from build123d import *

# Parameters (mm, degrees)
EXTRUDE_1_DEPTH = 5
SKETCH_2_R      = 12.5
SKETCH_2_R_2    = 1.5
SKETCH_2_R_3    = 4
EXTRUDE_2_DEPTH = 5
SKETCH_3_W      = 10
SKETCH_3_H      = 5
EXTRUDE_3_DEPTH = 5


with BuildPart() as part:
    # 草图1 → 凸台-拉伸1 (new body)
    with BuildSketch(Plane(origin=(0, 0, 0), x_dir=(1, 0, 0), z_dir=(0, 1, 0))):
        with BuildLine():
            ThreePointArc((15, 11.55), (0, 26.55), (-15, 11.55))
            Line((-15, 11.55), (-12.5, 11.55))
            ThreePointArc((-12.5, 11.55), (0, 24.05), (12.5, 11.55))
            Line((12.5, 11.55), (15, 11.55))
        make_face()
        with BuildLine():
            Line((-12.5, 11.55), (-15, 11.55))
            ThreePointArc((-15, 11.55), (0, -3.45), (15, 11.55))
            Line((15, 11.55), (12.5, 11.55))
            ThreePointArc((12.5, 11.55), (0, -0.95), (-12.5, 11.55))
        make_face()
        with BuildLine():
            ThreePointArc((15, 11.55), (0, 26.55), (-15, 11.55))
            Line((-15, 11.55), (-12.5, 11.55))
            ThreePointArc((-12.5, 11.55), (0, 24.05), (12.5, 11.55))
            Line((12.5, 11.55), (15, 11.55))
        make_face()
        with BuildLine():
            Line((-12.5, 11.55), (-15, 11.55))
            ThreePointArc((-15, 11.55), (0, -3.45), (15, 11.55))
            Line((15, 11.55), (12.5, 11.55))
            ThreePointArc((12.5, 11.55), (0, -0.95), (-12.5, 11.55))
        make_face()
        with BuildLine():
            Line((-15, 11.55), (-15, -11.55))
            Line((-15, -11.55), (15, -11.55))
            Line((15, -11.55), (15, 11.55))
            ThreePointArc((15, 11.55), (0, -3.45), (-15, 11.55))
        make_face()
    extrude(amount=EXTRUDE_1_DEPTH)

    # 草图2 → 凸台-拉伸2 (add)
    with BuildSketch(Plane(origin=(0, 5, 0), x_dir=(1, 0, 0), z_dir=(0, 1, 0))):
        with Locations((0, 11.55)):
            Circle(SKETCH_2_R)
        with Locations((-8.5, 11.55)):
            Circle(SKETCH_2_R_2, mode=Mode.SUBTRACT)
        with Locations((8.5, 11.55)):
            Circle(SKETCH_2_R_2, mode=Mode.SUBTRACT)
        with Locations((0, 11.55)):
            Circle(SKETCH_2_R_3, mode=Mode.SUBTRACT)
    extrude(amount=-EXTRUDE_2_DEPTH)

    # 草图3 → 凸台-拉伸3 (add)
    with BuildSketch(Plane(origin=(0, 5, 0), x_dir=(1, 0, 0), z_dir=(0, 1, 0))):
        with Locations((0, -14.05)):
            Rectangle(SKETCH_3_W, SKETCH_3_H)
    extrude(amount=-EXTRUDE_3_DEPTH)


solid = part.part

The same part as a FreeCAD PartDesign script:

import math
import FreeCAD as App
import Part
import Sketcher

V = App.Vector


def add_polygon(sketch, points):
    """Adds a closed chain of lines whose ends are joined by coincident constraints."""
    first, n = sketch.GeometryCount, len(points)
    for a, b in zip(points, points[1:] + points[:1]):
        sketch.addGeometry(Part.LineSegment(App.Vector(*a, 0), App.Vector(*b, 0)), False)
    for i in range(n):
        sketch.addConstraint(Sketcher.Constraint("Coincident", first + i, 2, first + (i + 1) % n, 1))

doc = App.newDocument("Part")
body = doc.addObject("PartDesign::Body", "Body")

# Sketch on XZ plane
sketch1 = body.newObject("Sketcher::SketchObject", "Sketch")
sketch1.AttachmentSupport = (doc.getObject("XZ_Plane"), [""])
sketch1.MapMode = "FlatFace"
sketch1.addGeometry(Part.ArcOfCircle(Part.Circle(V(0, -11.55, 0), V(0, 0, 1), 15), math.radians(180), math.radians(360)), False)
sketch1.addGeometry(Part.LineSegment(V(-15, -11.55, 0), V(-15, 11.55, 0)), False)
sketch1.addGeometry(Part.LineSegment(V(-15, 11.55, 0), V(15, 11.55, 0)), False)
sketch1.addGeometry(Part.LineSegment(V(15, 11.55, 0), V(15, -11.55, 0)), False)
sketch1.addGeometry(Part.Circle(V(0, -11.55, 0), V(0, 0, 1), 12.5), False)
sketch1.addConstraint(Sketcher.Constraint("Tangent", 0, 1, 1, 1))
sketch1.addConstraint(Sketcher.Constraint("Coincident", 1, 2, 2, 1))
sketch1.addConstraint(Sketcher.Constraint("Coincident", 2, 2, 3, 1))
sketch1.addConstraint(Sketcher.Constraint("Tangent", 3, 2, 0, 2))
sketch1.addConstraint(Sketcher.Constraint("Vertical", 1))
sketch1.addConstraint(Sketcher.Constraint("Horizontal", 2))
sketch1.addConstraint(Sketcher.Constraint("Vertical", 3))
sketch1.addConstraint(Sketcher.Constraint("Coincident", 4, 3, 0, 3))
sketch1.addConstraint(Sketcher.Constraint("Symmetric", 0, 1, 2, 2, -1, 1))
sketch1.addConstraint(Sketcher.Constraint("Diameter", 4, 25.0))
sketch1.addConstraint(Sketcher.Constraint("Radius", 0, 15.0))
sketch1.addConstraint(Sketcher.Constraint("DistanceY", 1, 1, 1, 2, 23.1))
pad1 = body.newObject("PartDesign::Pad", "Pad")
pad1.Profile = sketch1
pad1.Length = 5
pad1.Reversed = True

# Sketch on XZ plane
sketch2 = body.newObject("Sketcher::SketchObject", "Sketch001")
sketch2.AttachmentSupport = (doc.getObject("XZ_Plane"), [""])
sketch2.MapMode = "FlatFace"
sketch2.AttachmentOffset = App.Placement(V(0, 0, -5), App.Rotation())
sketch2.addGeometry(Part.Circle(V(0, -11.55, 0), V(0, 0, 1), 12.5), False)
sketch2.addGeometry(Part.Circle(V(-8.5, -11.55, 0), V(0, 0, 1), 1.5), False)
sketch2.addGeometry(Part.Circle(V(0, -11.55, 0), V(0, 0, 1), 4), False)
sketch2.addGeometry(Part.Circle(V(8.5, -11.55, 0), V(0, 0, 1), 1.5), False)
sketch2.addConstraint(Sketcher.Constraint("Coincident", 2, 3, 0, 3))
sketch2.addConstraint(Sketcher.Constraint("Equal", 1, 3))
sketch2.addConstraint(Sketcher.Constraint("Symmetric", 1, 3, 3, 3, -2))
sketch2.addConstraint(Sketcher.Constraint("PointOnObject", 0, 3, -2))
sketch2.addConstraint(Sketcher.Constraint("Horizontal", 0, 3, 1, 3))
sketch2.addConstraint(Sketcher.Constraint("Diameter", 0, 25.0))
sketch2.addConstraint(Sketcher.Constraint("Diameter", 1, 3.0))
sketch2.addConstraint(Sketcher.Constraint("Diameter", 2, 8.0))
sketch2.addConstraint(Sketcher.Constraint("DistanceX", 1, 3, 3, 3, 17.0))
sketch2.addConstraint(Sketcher.Constraint("DistanceY", 0, 3, -1, 1, 11.55))
pad2 = body.newObject("PartDesign::Pad", "Pad001")
pad2.Profile = sketch2
pad2.Length = 5

# Sketch on XZ plane
sketch3 = body.newObject("Sketcher::SketchObject", "Sketch002")
sketch3.AttachmentSupport = (doc.getObject("XZ_Plane"), [""])
sketch3.MapMode = "FlatFace"
sketch3.AttachmentOffset = App.Placement(V(0, 0, -5), App.Rotation())
add_polygon(sketch3, [(-5, 11.55), (-5, 16.55), (5, 16.55), (5, 11.55)])  # lines 0-3
sketch3.addConstraint(Sketcher.Constraint("Vertical", 0))
sketch3.addConstraint(Sketcher.Constraint("Horizontal", 1))
sketch3.addConstraint(Sketcher.Constraint("Vertical", 2))
sketch3.addConstraint(Sketcher.Constraint("Horizontal", 3))
sketch3.addConstraint(Sketcher.Constraint("DistanceX", 1, 1, 1, 2, 10.0))
sketch3.addConstraint(Sketcher.Constraint("DistanceY", 0, 1, 0, 2, 5.0))
sketch3.addConstraint(Sketcher.Constraint("DistanceX", 0, 2, -1, 1, 5.0))
sketch3.addConstraint(Sketcher.Constraint("DistanceY", -1, 1, 0, 2, 16.55))
pad3 = body.newObject("PartDesign::Pad", "Pad002")
pad3.Profile = sketch3
pad3.Length = 5

doc.recompute()
